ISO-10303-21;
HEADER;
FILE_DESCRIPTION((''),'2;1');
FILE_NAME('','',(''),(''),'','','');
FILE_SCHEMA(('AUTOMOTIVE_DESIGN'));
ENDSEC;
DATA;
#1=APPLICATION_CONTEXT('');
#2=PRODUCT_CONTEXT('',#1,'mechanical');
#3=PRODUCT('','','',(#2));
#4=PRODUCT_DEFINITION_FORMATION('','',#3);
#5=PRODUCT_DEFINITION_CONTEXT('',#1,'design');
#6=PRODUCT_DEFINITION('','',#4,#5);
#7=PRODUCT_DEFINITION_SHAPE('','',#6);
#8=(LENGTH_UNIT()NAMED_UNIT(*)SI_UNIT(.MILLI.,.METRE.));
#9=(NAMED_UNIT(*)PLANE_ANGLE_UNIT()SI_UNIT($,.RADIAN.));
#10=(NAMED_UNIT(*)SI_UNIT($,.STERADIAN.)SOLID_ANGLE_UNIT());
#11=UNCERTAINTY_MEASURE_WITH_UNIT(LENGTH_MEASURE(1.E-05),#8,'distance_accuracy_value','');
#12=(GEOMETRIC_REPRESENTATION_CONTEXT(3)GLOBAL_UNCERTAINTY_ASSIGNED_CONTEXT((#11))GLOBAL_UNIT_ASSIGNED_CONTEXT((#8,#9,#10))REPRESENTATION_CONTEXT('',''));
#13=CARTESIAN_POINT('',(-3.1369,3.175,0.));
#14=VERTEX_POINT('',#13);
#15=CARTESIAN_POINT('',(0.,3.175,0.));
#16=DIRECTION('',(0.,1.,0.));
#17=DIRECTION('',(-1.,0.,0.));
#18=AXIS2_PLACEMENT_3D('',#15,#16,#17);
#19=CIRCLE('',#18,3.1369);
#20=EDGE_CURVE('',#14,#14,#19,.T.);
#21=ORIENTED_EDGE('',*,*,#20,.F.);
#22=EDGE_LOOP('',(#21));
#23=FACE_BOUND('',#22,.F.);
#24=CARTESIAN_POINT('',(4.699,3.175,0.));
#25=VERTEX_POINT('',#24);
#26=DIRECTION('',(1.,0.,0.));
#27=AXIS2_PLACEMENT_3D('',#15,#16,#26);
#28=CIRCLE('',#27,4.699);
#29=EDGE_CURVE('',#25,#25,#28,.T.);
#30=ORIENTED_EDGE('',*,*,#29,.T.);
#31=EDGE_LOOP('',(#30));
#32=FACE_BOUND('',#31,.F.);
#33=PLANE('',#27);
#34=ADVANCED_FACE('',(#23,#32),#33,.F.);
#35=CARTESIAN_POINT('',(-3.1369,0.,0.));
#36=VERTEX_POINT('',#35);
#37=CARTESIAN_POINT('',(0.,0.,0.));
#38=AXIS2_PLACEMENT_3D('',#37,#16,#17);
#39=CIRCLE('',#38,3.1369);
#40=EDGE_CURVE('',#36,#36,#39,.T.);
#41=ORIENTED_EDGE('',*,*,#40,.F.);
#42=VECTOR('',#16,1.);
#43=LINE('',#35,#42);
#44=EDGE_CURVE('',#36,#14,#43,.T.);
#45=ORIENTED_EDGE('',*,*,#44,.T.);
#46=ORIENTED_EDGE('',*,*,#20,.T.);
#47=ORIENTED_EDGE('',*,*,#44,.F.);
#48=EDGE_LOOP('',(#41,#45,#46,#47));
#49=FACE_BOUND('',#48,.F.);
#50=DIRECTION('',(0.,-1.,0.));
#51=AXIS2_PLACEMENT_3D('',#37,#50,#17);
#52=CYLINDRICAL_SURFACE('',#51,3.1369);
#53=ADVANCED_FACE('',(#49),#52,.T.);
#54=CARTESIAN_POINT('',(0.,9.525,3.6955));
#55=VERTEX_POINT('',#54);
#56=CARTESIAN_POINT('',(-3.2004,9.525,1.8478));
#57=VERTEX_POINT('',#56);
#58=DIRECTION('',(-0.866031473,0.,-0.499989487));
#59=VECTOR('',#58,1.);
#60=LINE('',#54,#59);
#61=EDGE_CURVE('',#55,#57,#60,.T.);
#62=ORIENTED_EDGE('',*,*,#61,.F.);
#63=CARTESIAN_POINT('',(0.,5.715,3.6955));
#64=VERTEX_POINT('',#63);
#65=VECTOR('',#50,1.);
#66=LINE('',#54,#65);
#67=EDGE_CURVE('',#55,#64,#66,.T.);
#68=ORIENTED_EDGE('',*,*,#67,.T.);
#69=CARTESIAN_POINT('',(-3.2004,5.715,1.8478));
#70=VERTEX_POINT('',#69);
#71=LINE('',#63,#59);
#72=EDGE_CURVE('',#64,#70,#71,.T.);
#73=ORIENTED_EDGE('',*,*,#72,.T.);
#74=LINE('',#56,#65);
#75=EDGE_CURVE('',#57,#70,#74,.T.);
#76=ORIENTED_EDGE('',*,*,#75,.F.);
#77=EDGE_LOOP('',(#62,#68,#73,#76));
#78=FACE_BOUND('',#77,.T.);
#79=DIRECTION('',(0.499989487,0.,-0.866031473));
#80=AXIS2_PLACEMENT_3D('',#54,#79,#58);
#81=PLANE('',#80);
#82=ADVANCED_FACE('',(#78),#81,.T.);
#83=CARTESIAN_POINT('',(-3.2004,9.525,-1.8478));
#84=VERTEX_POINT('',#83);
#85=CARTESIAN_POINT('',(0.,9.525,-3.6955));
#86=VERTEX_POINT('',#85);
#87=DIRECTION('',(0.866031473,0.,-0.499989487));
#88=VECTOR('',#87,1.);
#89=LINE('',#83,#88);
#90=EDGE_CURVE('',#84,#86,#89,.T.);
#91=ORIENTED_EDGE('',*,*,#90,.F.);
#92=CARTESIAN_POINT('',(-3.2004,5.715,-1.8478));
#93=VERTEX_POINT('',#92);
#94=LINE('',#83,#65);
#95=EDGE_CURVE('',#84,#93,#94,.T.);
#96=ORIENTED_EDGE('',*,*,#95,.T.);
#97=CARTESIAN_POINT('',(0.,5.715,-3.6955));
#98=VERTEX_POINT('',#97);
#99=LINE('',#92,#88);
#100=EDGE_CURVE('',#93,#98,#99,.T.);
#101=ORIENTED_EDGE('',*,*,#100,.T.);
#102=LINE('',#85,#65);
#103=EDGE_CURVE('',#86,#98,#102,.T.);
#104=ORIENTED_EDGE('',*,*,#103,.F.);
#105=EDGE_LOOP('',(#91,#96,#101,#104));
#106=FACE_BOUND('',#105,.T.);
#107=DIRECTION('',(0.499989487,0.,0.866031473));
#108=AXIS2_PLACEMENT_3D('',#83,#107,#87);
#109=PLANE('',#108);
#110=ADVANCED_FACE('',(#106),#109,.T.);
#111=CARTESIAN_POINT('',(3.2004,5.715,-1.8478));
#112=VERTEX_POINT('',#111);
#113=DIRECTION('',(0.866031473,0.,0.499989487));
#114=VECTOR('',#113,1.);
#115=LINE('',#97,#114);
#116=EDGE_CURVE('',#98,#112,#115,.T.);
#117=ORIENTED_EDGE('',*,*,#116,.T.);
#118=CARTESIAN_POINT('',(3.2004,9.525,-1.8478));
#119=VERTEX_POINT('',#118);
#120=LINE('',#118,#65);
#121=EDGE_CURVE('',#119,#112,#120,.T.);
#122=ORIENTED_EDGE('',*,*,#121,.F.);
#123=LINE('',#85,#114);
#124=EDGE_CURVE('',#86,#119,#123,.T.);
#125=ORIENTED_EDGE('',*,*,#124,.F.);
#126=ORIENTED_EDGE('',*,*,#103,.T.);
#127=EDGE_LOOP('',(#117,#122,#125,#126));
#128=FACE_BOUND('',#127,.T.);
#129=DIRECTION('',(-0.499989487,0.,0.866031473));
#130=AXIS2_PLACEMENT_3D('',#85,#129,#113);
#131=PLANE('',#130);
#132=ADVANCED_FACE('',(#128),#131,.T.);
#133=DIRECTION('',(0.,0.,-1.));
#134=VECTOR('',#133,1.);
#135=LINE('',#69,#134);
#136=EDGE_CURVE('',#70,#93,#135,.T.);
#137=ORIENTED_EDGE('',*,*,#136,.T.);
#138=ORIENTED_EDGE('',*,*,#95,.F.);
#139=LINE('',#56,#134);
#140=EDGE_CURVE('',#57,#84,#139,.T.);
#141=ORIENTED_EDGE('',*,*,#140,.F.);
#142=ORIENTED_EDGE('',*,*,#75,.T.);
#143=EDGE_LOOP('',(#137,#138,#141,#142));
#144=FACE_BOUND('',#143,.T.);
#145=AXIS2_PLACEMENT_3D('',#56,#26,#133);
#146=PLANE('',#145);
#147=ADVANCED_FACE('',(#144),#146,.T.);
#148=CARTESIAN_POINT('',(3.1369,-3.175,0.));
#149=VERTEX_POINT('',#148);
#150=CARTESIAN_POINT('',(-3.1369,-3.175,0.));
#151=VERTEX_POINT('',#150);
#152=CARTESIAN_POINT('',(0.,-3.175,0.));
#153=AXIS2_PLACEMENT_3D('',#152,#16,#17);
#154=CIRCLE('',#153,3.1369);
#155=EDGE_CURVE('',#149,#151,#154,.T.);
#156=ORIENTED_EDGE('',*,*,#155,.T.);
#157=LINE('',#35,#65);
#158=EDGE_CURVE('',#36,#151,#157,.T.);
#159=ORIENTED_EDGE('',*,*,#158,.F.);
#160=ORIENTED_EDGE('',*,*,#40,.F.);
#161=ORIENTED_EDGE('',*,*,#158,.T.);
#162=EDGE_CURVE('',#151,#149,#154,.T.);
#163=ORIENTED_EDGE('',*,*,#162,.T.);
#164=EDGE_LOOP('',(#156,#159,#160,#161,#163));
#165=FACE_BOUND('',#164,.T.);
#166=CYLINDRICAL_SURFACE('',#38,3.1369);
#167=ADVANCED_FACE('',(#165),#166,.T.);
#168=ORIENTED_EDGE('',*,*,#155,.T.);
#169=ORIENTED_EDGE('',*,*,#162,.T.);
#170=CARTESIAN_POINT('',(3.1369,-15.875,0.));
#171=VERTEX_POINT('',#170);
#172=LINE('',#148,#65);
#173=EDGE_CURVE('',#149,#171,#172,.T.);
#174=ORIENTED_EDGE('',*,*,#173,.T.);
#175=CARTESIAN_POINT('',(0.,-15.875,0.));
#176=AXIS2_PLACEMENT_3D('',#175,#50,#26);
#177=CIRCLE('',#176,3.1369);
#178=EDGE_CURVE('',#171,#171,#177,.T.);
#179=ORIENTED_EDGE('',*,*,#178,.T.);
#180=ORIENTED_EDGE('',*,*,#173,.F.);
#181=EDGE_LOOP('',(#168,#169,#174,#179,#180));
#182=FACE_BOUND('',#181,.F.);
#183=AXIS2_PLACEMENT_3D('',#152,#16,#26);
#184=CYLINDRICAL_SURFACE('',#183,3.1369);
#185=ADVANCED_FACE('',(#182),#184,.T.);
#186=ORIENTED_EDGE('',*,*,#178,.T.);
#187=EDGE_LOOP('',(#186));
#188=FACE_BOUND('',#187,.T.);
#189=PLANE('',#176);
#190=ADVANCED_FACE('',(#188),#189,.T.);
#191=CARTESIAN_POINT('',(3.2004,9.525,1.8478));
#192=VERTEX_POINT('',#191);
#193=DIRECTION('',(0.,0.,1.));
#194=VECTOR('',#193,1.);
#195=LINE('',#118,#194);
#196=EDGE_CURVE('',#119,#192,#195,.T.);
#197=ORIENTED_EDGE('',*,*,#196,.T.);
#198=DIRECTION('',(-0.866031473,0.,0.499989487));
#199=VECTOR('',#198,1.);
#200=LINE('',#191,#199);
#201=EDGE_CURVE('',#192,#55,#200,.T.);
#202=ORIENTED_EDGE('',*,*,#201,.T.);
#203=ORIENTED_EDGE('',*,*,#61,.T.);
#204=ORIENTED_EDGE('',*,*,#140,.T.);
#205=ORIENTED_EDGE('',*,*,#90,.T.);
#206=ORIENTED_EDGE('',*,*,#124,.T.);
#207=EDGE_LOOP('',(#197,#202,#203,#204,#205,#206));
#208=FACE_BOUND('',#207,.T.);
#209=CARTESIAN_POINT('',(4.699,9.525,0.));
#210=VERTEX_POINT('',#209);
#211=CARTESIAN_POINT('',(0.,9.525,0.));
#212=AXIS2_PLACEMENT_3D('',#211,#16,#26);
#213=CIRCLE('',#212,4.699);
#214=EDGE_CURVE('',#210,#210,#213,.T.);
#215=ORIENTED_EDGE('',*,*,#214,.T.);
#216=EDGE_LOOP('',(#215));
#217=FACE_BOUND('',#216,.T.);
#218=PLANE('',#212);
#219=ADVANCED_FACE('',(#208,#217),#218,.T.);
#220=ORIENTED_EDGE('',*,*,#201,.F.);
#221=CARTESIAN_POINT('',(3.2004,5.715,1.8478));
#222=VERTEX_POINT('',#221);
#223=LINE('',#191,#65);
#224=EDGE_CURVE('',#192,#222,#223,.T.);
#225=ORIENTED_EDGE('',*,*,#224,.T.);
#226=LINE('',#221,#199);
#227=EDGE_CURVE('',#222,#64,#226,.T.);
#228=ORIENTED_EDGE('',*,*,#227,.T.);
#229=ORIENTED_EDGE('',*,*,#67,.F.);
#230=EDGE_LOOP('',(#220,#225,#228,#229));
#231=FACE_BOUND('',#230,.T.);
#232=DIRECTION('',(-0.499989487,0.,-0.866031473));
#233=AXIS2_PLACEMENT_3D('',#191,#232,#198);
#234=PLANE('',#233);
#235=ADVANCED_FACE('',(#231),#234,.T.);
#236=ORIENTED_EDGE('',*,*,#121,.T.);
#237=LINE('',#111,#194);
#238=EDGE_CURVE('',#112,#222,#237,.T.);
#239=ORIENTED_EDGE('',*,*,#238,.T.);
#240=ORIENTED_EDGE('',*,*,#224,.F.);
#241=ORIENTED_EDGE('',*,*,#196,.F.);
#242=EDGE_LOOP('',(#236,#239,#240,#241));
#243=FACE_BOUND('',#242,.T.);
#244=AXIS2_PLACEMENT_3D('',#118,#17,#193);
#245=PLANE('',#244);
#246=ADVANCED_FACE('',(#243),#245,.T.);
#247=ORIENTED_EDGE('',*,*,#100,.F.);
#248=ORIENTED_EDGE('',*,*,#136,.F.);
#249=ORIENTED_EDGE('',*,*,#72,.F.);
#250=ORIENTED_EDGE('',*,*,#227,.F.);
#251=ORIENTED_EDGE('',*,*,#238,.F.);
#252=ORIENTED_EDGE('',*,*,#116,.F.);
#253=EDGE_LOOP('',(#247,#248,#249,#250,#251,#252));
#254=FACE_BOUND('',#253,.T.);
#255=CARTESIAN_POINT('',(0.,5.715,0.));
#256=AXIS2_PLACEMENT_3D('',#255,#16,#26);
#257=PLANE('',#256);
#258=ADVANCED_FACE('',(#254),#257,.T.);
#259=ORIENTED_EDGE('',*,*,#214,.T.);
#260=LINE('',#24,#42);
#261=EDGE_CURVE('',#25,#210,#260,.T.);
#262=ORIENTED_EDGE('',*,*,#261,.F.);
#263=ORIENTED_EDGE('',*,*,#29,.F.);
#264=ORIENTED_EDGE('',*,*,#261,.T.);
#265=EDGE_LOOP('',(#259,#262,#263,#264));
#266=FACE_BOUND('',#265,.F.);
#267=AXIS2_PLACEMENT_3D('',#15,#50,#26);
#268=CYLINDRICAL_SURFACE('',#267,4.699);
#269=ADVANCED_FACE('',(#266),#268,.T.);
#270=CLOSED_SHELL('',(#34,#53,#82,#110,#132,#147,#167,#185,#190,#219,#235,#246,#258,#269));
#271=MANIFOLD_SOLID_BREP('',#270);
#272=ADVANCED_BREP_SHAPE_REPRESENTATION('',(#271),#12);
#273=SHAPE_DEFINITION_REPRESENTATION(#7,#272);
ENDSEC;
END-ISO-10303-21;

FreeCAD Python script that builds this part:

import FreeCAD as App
import Part
import Sketcher
from FreeCAD import Vector
Q = App.Units.Quantity

doc = App.newDocument("Part")
params = doc.addObject("Spreadsheet::Sheet", "Params")
for row, (alias, value) in enumerate([
    ("sketch1_diameter", "0.247 in"),
    ("pad1_length", "0.25 in"),
    ("sketch2_diameter", "0.37 in"),
    ("pad2_length", "0.25 in"),
    ("sketch3_diameter", "0.247 in"),
    ("pad3_length", "0.5 in"),
    ("pocket1_length", "0.15 in"),
], start=1):
    params.set(f"A{row}", alias)
    params.set(f"B{row}", "=" + value)
    params.setAlias(f"B{row}", alias)

body = doc.addObject("PartDesign::Body", "Body")

# Sketch on XZ plane
sketch1 = body.newObject("Sketcher::SketchObject", "Sketch")
sketch1.AttachmentSupport = (doc.getObject("XZ_Plane"), [""])
sketch1.MapMode = "FlatFace"
sketch1.addGeometry(Part.Circle(Vector(0, 0, 0), Vector(0, 0, 1), 3.1), False)
sketch1.addConstraint(Sketcher.Constraint("Coincident", 0, 3, -1, 1))
sketch1.addConstraint(Sketcher.Constraint("Diameter", 0, Q("0.247 in")))
sketch1.setExpression("Constraints[1]", "Params.sketch1_diameter")
pad1 = body.newObject("PartDesign::Pad", "Pad")
pad1.Profile = sketch1
pad1.setExpression("Length", "Params.pad1_length")
pad1.Midplane = True

# Sketch on XZ plane
sketch2 = body.newObject("Sketcher::SketchObject", "Sketch001")
sketch2.AttachmentSupport = (doc.getObject("XZ_Plane"), [""])
sketch2.MapMode = "FlatFace"
sketch2.AttachmentOffset = App.Placement(Vector(0, 0, -0.125 * 25.4), App.Rotation())
sketch2.addGeometry(Part.Circle(Vector(0, 0, 0), Vector(0, 0, 1), 4.7), False)
sketch2.addConstraint(Sketcher.Constraint("Coincident", 0, 3, -1, 1))
sketch2.addConstraint(Sketcher.Constraint("Diameter", 0, Q("0.37 in")))
sketch2.setExpression("Constraints[1]", "Params.sketch2_diameter")
pad2 = body.newObject("PartDesign::Pad", "Pad001")
pad2.Profile = sketch2
pad2.setExpression("Length", "Params.pad2_length")
pad2.Reversed = True

# Sketch on XZ plane
sketch3 = body.newObject("Sketcher::SketchObject", "Sketch002")
sketch3.AttachmentSupport = (doc.getObject("XZ_Plane"), [""])
sketch3.MapMode = "FlatFace"
sketch3.AttachmentOffset = App.Placement(Vector(0, 0, 0.125 * 25.4), App.Rotation())
sketch3.addGeometry(Part.Circle(Vector(0, 0, 0), Vector(0, 0, 1), 3.1), False)
sketch3.addConstraint(Sketcher.Constraint("Coincident", 0, 3, -1, 1))
sketch3.addConstraint(Sketcher.Constraint("Diameter", 0, Q("0.247 in")))
sketch3.setExpression("Constraints[1]", "Params.sketch3_diameter")
pad3 = body.newObject("PartDesign::Pad", "Pad002")
pad3.Profile = sketch3
pad3.setExpression("Length", "Params.pad3_length")

# Sketch on XZ plane
sketch4 = body.newObject("Sketcher::SketchObject", "Sketch003")
sketch4.AttachmentSupport = (doc.getObject("XZ_Plane"), [""])
sketch4.MapMode = "FlatFace"
sketch4.AttachmentOffset = App.Placement(Vector(0, 0, -0.375 * 25.4), App.Rotation())
sketch4.addGeometry(Part.LineSegment(Vector(-3.2, 1.8, 0), Vector(0, 3.7, 0)), False)
sketch4.addGeometry(Part.LineSegment(Vector(0, 3.7, 0), Vector(3.2, 1.8, 0)), False)
sketch4.addGeometry(Part.LineSegment(Vector(3.2, 1.8, 0), Vector(3.2, -1.8, 0)), False)
sketch4.addGeometry(Part.LineSegment(Vector(3.2, -1.8, 0), Vector(0, -3.7, 0)), False)
sketch4.addGeometry(Part.LineSegment(Vector(0, -3.7, 0), Vector(-3.2, -1.8, 0)), False)
sketch4.addGeometry(Part.LineSegment(Vector(-3.2, -1.8, 0), Vector(-3.2, 1.8, 0)), False)
sketch4.addConstraint(Sketcher.Constraint("Coincident", 0, 2, 1, 1))
sketch4.addConstraint(Sketcher.Constraint("Coincident", 1, 2, 2, 1))
sketch4.addConstraint(Sketcher.Constraint("Coincident", 2, 2, 3, 1))
sketch4.addConstraint(Sketcher.Constraint("Coincident", 3, 2, 4, 1))
sketch4.addConstraint(Sketcher.Constraint("Coincident", 4, 2, 5, 1))
sketch4.addConstraint(Sketcher.Constraint("Coincident", 5, 2, 0, 1))
sketch4.addConstraint(Sketcher.Constraint("Vertical", 2))
sketch4.addConstraint(Sketcher.Constraint("Vertical", 5))
sketch4.addConstraint(Sketcher.Constraint("Symmetric", 0, 2, 3, 2, -1, 1))
sketch4.addConstraint(Sketcher.Constraint("Symmetric", 1, 2, 4, 2, -1, 1))
sketch4.addConstraint(Sketcher.Constraint("PointOnObject", 0, 2, -2))
sketch4.addConstraint(Sketcher.Constraint("Parallel", 0, 3))
sketch4.addConstraint(Sketcher.Constraint("Horizontal", 2, 2, 4, 2))
sketch4.addConstraint(Sketcher.Constraint("Angle", 0, Q("29.9993 deg")))
sketch4.addConstraint(Sketcher.Constraint("DistanceX", 4, 2, 2, 2, Q("0.252 in")))
sketch4.addConstraint(Sketcher.Constraint("DistanceY", 2, 2, 2, 1, Q("0.1455 in")))
pocket1 = body.newObject("PartDesign::Pocket", "Pocket")
pocket1.Profile = sketch4
pocket1.setExpression("Length", "Params.pocket1_length")
pocket1.Reversed = True

doc.recompute()
